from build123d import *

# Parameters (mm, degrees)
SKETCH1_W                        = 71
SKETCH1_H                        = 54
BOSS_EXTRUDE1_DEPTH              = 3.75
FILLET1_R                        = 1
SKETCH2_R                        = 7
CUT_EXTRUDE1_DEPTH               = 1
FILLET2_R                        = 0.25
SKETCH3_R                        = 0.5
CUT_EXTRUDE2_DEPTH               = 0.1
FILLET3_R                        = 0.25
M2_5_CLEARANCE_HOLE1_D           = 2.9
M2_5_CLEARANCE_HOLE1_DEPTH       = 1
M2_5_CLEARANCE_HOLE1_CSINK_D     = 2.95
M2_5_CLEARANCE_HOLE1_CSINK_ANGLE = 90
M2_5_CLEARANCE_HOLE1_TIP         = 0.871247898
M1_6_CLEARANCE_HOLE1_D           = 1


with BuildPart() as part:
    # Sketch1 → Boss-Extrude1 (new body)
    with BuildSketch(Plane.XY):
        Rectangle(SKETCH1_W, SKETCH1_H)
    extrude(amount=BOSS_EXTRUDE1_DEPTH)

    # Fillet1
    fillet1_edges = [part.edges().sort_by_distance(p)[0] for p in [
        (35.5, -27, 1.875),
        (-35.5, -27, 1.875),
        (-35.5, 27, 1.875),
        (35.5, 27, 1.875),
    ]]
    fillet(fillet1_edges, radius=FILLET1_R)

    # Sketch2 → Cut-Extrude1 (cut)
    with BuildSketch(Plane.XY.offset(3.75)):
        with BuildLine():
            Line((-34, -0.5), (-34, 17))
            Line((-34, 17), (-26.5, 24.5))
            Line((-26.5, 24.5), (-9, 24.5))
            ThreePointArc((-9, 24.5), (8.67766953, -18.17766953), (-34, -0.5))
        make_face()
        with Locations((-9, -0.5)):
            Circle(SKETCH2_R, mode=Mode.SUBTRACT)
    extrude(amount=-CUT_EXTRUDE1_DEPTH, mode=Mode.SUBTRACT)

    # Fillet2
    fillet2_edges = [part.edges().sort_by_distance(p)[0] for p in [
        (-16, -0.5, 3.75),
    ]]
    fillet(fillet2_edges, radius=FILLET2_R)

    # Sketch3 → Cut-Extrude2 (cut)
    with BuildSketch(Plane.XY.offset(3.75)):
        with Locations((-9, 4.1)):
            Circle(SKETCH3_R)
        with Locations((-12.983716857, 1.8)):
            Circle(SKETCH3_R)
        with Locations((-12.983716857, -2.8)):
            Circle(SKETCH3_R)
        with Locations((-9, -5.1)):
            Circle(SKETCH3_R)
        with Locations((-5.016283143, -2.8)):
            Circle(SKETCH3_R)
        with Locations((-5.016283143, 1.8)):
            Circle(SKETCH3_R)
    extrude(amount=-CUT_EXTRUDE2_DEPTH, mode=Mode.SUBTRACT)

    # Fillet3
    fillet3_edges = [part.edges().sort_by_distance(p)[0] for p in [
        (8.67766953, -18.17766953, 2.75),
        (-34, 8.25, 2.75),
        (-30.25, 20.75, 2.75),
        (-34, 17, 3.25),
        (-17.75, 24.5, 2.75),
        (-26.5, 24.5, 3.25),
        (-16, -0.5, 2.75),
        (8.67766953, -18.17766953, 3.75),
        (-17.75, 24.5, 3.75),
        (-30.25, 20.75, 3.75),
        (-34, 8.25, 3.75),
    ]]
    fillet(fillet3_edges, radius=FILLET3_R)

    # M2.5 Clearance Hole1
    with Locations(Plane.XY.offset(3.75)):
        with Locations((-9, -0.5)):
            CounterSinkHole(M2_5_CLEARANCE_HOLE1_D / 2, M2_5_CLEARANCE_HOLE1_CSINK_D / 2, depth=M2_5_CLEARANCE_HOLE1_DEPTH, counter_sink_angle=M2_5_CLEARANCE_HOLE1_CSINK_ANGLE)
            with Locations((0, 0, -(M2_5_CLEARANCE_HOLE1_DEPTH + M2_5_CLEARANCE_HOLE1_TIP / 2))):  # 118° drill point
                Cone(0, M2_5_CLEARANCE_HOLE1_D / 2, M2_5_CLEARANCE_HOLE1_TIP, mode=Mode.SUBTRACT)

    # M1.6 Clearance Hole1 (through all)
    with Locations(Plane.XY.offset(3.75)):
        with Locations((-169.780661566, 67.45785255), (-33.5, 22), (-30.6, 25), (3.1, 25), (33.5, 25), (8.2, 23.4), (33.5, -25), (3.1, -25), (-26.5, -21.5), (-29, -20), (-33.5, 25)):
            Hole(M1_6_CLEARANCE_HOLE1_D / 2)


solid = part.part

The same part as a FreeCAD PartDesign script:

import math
import FreeCAD as App
import Part
import Sketcher
from FreeCAD import Vector
Q = App.Units.Quantity


def edges_at(feature, points):
    """Names of the edges that pass closest to the given points."""
    edges = feature.Shape.Edges
    near = lambda p: min(range(len(edges)), key=lambda i: edges[i].distToShape(Part.Vertex(*p))[0])
    return sorted({f"Edge{near(p) + 1}" for p in points})


def add_polygon(sketch, points):
    """Adds a closed chain of lines whose ends are joined by coincident constraints."""
    first, n = sketch.GeometryCount, len(points)
    for a, b in zip(points, points[1:] + points[:1]):
        sketch.addGeometry(Part.LineSegment(App.Vector(*a, 0), App.Vector(*b, 0)), False)
    for i in range(n):
        sketch.addConstraint(Sketcher.Constraint("Coincident", first + i, 2, first + (i + 1) % n, 1))

doc = App.newDocument("Part")
params = doc.addObject("Spreadsheet::Sheet", "Params")
for row, (alias, value) in enumerate([
    ("sketch1_width", "71 mm"),
    ("sketch1_height", "54 mm"),
    ("pad1_length", "3.75 mm"),
    ("fillet_radius", "1 mm"),
    ("sketch2_diameter", "14 mm"),
    ("sketch2_radius", "25 mm"),
    ("sketch2_width", "17.5 mm"),
    ("pocket1_length", "1 mm"),
    ("fillet2_radius", "0.25 mm"),
    ("sketch3_diameter", "1 mm"),
    ("pocket2_length", "0.1 mm"),
    ("fillet3_radius", "0.25 mm"),
    ("sketch4_diameter", "2.9 mm"),
    ("hole_diameter", "2.9 mm"),
    ("hole_depth", "1 mm"),
    ("hole_csink_diameter", "2.95 mm"),
    ("sketch5_diameter", "1 mm"),
    ("hole2_diameter", "1 mm"),
], start=1):
    params.set(f"A{row}", alias)
    params.set(f"B{row}", "=" + value)
    params.setAlias(f"B{row}", alias)

body = doc.addObject("PartDesign::Body", "Body")

# Sketch on XY plane
sketch1 = body.newObject("Sketcher::SketchObject", "Sketch")
sketch1.AttachmentSupport = (doc.getObject("XY_Plane"), [""])
sketch1.MapMode = "FlatFace"
add_polygon(sketch1, [(-35.5, 27), (-35.5, -27), (35.5, -27), (35.5, 27)])  # lines 0-3
sketch1.addConstraint(Sketcher.Constraint("Vertical", 0))
sketch1.addConstraint(Sketcher.Constraint("Horizontal", 1))
sketch1.addConstraint(Sketcher.Constraint("Vertical", 2))
sketch1.addConstraint(Sketcher.Constraint("Horizontal", 3))
sketch1.addConstraint(Sketcher.Constraint("Symmetric", 0, 2, 2, 2, -1, 1))
sketch1.addConstraint(Sketcher.Constraint("DistanceX", 1, 1, 1, 2, Q("71 mm")))
sketch1.addConstraint(Sketcher.Constraint("DistanceY", 0, 2, 0, 1, Q("54 mm")))
sketch1.setExpression("Constraints[9]", "Params.sketch1_width")
sketch1.setExpression("Constraints[10]", "Params.sketch1_height")
pad1 = body.newObject("PartDesign::Pad", "Pad")
pad1.Profile = sketch1
pad1.setExpression("Length", "Params.pad1_length")
doc.recompute()

fillet = body.newObject("PartDesign::Fillet", "Fillet")
fillet.Base = (pad1, edges_at(pad1, [
    (35.5, -27, 1.875),
    (-35.5, -27, 1.875),
    (-35.5, 27, 1.875),
    (35.5, 27, 1.875),
]))
fillet.setExpression("Radius", "Params.fillet_radius")

# Sketch on XY plane
sketch2 = body.newObject("Sketcher::SketchObject", "Sketch001")
sketch2.AttachmentSupport = (doc.getObject("XY_Plane"), [""])
sketch2.MapMode = "FlatFace"
sketch2.AttachmentOffset = App.Placement(Vector(0, 0, 3.75), App.Rotation())
sketch2.addGeometry(Part.LineSegment(Vector(-34, 17, 0), Vector(-34, -0.5, 0)), False)
sketch2.addGeometry(Part.ArcOfCircle(Part.Circle(Vector(-9, -0.5, 0), Vector(0, 0, 1), 25), math.radians(180), math.radians(450)), False)
sketch2.addGeometry(Part.LineSegment(Vector(-9, 24.5, 0), Vector(-26.5, 24.5, 0)), False)
sketch2.addGeometry(Part.LineSegment(Vector(-26.5, 24.5, 0), Vector(-34, 17, 0)), False)
sketch2.addGeometry(Part.Circle(Vector(-9, -0.5, 0), Vector(0, 0, 1), 7), False)
sketch2.addConstraint(Sketcher.Constraint("Tangent", 0, 2, 1, 1))
sketch2.addConstraint(Sketcher.Constraint("Tangent", 1, 2, 2, 1))
sketch2.addConstraint(Sketcher.Constraint("Coincident", 2, 2, 3, 1))
sketch2.addConstraint(Sketcher.Constraint("Coincident", 3, 2, 0, 1))
sketch2.addConstraint(Sketcher.Constraint("Vertical", 0))
sketch2.addConstraint(Sketcher.Constraint("Horizontal", 2))
sketch2.addConstraint(Sketcher.Constraint("Coincident", 4, 3, 1, 3))
sketch2.addConstraint(Sketcher.Constraint("Equal", 2, 0))
sketch2.addConstraint(Sketcher.Constraint("Diameter", 4, Q("14 mm")))
sketch2.addConstraint(Sketcher.Constraint("Radius", 1, Q("25 mm")))
sketch2.addConstraint(Sketcher.Constraint("DistanceX", 2, 2, 2, 1, Q("17.5 mm")))
sketch2.addConstraint(Sketcher.Constraint("DistanceX", 1, 3, -1, 1, Q("9 mm")))
sketch2.addConstraint(Sketcher.Constraint("DistanceY", -1, 1, 3, 2, Q("17 mm")))
sketch2.setExpression("Constraints[8]", "Params.sketch2_diameter")
sketch2.setExpression("Constraints[9]", "Params.sketch2_radius")
sketch2.setExpression("Constraints[10]", "Params.sketch2_width")
pocket1 = body.newObject("PartDesign::Pocket", "Pocket")
pocket1.Profile = sketch2
pocket1.setExpression("Length", "Params.pocket1_length")
doc.recompute()

fillet2 = body.newObject("PartDesign::Fillet", "Fillet001")
fillet2.Base = (pocket1, edges_at(pocket1, [(-16, -0.5, 3.75)]))
fillet2.setExpression("Radius", "Params.fillet2_radius")

# Sketch on XY plane
sketch3 = body.newObject("Sketcher::SketchObject", "Sketch002")
sketch3.AttachmentSupport = (doc.getObject("XY_Plane"), [""])
sketch3.MapMode = "FlatFace"
sketch3.AttachmentOffset = App.Placement(Vector(0, 0, 3.75), App.Rotation())
sketch3.addGeometry(Part.Circle(Vector(-9, 4.1, 0), Vector(0, 0, 1), 0.5), False)
sketch3.addGeometry(Part.Circle(Vector(-12.983717, 1.8, 0), Vector(0, 0, 1), 0.5), False)
sketch3.addGeometry(Part.Circle(Vector(-12.983717, -2.8, 0), Vector(0, 0, 1), 0.5), False)
sketch3.addGeometry(Part.Circle(Vector(-9, -5.1, 0), Vector(0, 0, 1), 0.5), False)
sketch3.addGeometry(Part.Circle(Vector(-5.016283, -2.8, 0), Vector(0, 0, 1), 0.5), False)
sketch3.addGeometry(Part.Circle(Vector(-5.016283, 1.8, 0), Vector(0, 0, 1), 0.5), False)
sketch3.addConstraint(Sketcher.Constraint("Equal", 0, 1))
sketch3.addConstraint(Sketcher.Constraint("Equal", 1, 2))
sketch3.addConstraint(Sketcher.Constraint("Equal", 2, 3))
sketch3.addConstraint(Sketcher.Constraint("Equal", 3, 4))
sketch3.addConstraint(Sketcher.Constraint("Equal", 4, 5))
sketch3.addConstraint(Sketcher.Constraint("Horizontal", 2, 3, 4, 3))
sketch3.addConstraint(Sketcher.Constraint("Horizontal", 1, 3, 5, 3))
sketch3.addConstraint(Sketcher.Constraint("Vertical", 1, 3, 2, 3))
sketch3.addConstraint(Sketcher.Constraint("Vertical", 0, 3, 3, 3))
sketch3.addConstraint(Sketcher.Constraint("Vertical", 4, 3, 5, 3))
sketch3.addConstraint(Sketcher.Constraint("Diameter", 0, Q("1 mm")))
sketch3.addConstraint(Sketcher.Constraint("DistanceX", 0, 3, -1, 1, Q("9 mm")))
sketch3.addConstraint(Sketcher.Constraint("DistanceY", -1, 1, 0, 3, Q("4.1 mm")))
sketch3.addConstraint(Sketcher.Constraint("DistanceY", -1, 1, 1, 3, Q("1.8 mm")))
sketch3.addConstraint(Sketcher.Constraint("DistanceY", 2, 3, -1, 1, Q("2.8 mm")))
sketch3.addConstraint(Sketcher.Constraint("DistanceY", 3, 3, -1, 1, Q("5.1 mm")))
sketch3.addConstraint(Sketcher.Constraint("DistanceX", 1, 3, -1, 1, Q("12.983717 mm")))
sketch3.addConstraint(Sketcher.Constraint("DistanceX", 4, 3, -1, 1, Q("5.016283 mm")))
sketch3.setExpression("Constraints[10]", "Params.sketch3_diameter")
pocket2 = body.newObject("PartDesign::Pocket", "Pocket001")
pocket2.Profile = sketch3
pocket2.setExpression("Length", "Params.pocket2_length")
doc.recompute()

fillet3 = body.newObject("PartDesign::Fillet", "Fillet002")
fillet3.Base = (pocket2, edges_at(pocket2, [
    (8.678, -18.178, 2.75),
    (-34, 8.25, 2.75),
    (-30.25, 20.75, 2.75),
    (-34, 17, 3.25),
    (-17.75, 24.5, 2.75),
    (-26.5, 24.5, 3.25),
    (-16, -0.5, 2.75),
    (8.678, -18.178, 3.75),
    (-17.75, 24.5, 3.75),
    (-30.25, 20.75, 3.75),
    (-34, 8.25, 3.75),
]))
fillet3.setExpression("Radius", "Params.fillet3_radius")

# Sketch on XY plane
sketch4 = body.newObject("Sketcher::SketchObject", "Sketch003")
sketch4.AttachmentSupport = (doc.getObject("XY_Plane"), [""])
sketch4.MapMode = "FlatFace"
sketch4.AttachmentOffset = App.Placement(Vector(0, 0, 3.75), App.Rotation())
sketch4.addGeometry(Part.Circle(Vector(-9, -0.5, 0), Vector(0, 0, 1), 1.45), False)
sketch4.addConstraint(Sketcher.Constraint("Diameter", 0, Q("2.9 mm")))
sketch4.addConstraint(Sketcher.Constraint("DistanceX", 0, 3, -1, 1, Q("9 mm")))
sketch4.addConstraint(Sketcher.Constraint("DistanceY", 0, 3, -1, 1, Q("0.5 mm")))
sketch4.setExpression("Constraints[0]", "Params.sketch4_diameter")
doc.recompute()
hole = body.newObject("PartDesign::Hole", "Hole")
hole.Profile = sketch4
hole.ThreadType = "None"
hole.setExpression("Diameter", "Params.hole_diameter")
hole.DepthType = "Dimension"
hole.setExpression("Depth", "Params.hole_depth")
hole.DrillPoint = "Angled"
hole.DrillPointAngle = 118
hole.HoleCutType = "Countersink"
hole.setExpression("HoleCutDiameter", "Params.hole_csink_diameter")
hole.HoleCutCountersinkAngle = 90

# Sketch on XY plane
sketch5 = body.newObject("Sketcher::SketchObject", "Sketch004")
sketch5.AttachmentSupport = (doc.getObject("XY_Plane"), [""])
sketch5.MapMode = "FlatFace"
sketch5.AttachmentOffset = App.Placement(Vector(0, 0, 3.75), App.Rotation())
sketch5.addGeometry(Part.Circle(Vector(-169.780662, 67.457853, 0), Vector(0, 0, 1), 0.5), False)
sketch5.addGeometry(Part.Circle(Vector(-33.5, 22, 0), Vector(0, 0, 1), 0.5), False)
sketch5.addGeometry(Part.Circle(Vector(-30.6, 25, 0), Vector(0, 0, 1), 0.5), False)
sketch5.addGeometry(Part.Circle(Vector(3.1, 25, 0), Vector(0, 0, 1), 0.5), False)
sketch5.addGeometry(Part.Circle(Vector(33.5, 25, 0), Vector(0, 0, 1), 0.5), False)
sketch5.addGeometry(Part.Circle(Vector(8.2, 23.4, 0), Vector(0, 0, 1), 0.5), False)
sketch5.addGeometry(Part.Circle(Vector(33.5, -25, 0), Vector(0, 0, 1), 0.5), False)
sketch5.addGeometry(Part.Circle(Vector(3.1, -25, 0), Vector(0, 0, 1), 0.5), False)
sketch5.addGeometry(Part.Circle(Vector(-26.5, -21.5, 0), Vector(0, 0, 1), 0.5), False)
sketch5.addGeometry(Part.Circle(Vector(-29, -20, 0), Vector(0, 0, 1), 0.5), False)
sketch5.addGeometry(Part.Circle(Vector(-33.5, 25, 0), Vector(0, 0, 1), 0.5), False)
sketch5.addConstraint(Sketcher.Constraint("Equal", 0, 1))
sketch5.addConstraint(Sketcher.Constraint("Equal", 1, 2))
sketch5.addConstraint(Sketcher.Constraint("Equal", 2, 3))
sketch5.addConstraint(Sketcher.Constraint("Equal", 3, 4))
sketch5.addConstraint(Sketcher.Constraint("Equal", 4, 5))
sketch5.addConstraint(Sketcher.Constraint("Equal", 5, 6))
sketch5.addConstraint(Sketcher.Constraint("Equal", 6, 7))
sketch5.addConstraint(Sketcher.Constraint("Equal", 7, 8))
sketch5.addConstraint(Sketcher.Constraint("Equal", 8, 9))
sketch5.addConstraint(Sketcher.Constraint("Equal", 9, 10))
sketch5.addConstraint(Sketcher.Constraint("Symmetric", 6, 3, 10, 3, -1, 1))
sketch5.addConstraint(Sketcher.Constraint("Symmetric", 4, 3, 10, 3, -2))
sketch5.addConstraint(Sketcher.Constraint("Symmetric", 3, 3, 7, 3, -1))
sketch5.addConstraint(Sketcher.Constraint("Horizontal", 2, 3, 3, 3))
sketch5.addConstraint(Sketcher.Constraint("Horizontal", 3, 3, 4, 3))
sketch5.addConstraint(Sketcher.Constraint("Vertical", 1, 3, 10, 3))
sketch5.addConstraint(Sketcher.Constraint("Diameter", 0, Q("1 mm")))
sketch5.addConstraint(Sketcher.Constraint("DistanceY", -1, 1, 1, 3, Q("22 mm")))
sketch5.addConstraint(Sketcher.Constraint("DistanceY", -1, 1, 2, 3, Q("25 mm")))
sketch5.addConstraint(Sketcher.Constraint("DistanceX", 9, 3, -1, 1, Q("29 mm")))
sketch5.addConstraint(Sketcher.Constraint("DistanceY", 9, 3, -1, 1, Q("20 mm")))
sketch5.addConstraint(Sketcher.Constraint("DistanceX", 1, 3, 4, 3, Q("67 mm")))
sketch5.addConstraint(Sketcher.Constraint("DistanceX", 1, 3, 8, 3, Q("7 mm")))
sketch5.addConstraint(Sketcher.Constraint("DistanceX", 2, 3, -1, 1, Q("30.6 mm")))
sketch5.addConstraint(Sketcher.Constraint("DistanceX", -1, 1, 3, 3, Q("3.1 mm")))
sketch5.addConstraint(Sketcher.Constraint("DistanceX", -1, 1, 5, 3, Q("8.2 mm")))
sketch5.addConstraint(Sketcher.Constraint("DistanceY", -1, 1, 5, 3, Q("23.4 mm")))
sketch5.addConstraint(Sketcher.Constraint("DistanceY", 8, 3, -1, 1, Q("21.5 mm")))
sketch5.addConstraint(Sketcher.Constraint("DistanceX", 0, 3, -1, 1, Q("169.780662 mm")))
sketch5.addConstraint(Sketcher.Constraint("DistanceY", -1, 1, 0, 3, Q("67.457853 mm")))
sketch5.setExpression("Constraints[16]", "Params.sketch5_diameter")
doc.recompute()
hole2 = body.newObject("PartDesign::Hole", "Hole001")
hole2.Profile = sketch5
hole2.ThreadType = "None"
hole2.setExpression("Diameter", "Params.hole2_diameter")
hole2.DepthType = "ThroughAll"

doc.recompute()
